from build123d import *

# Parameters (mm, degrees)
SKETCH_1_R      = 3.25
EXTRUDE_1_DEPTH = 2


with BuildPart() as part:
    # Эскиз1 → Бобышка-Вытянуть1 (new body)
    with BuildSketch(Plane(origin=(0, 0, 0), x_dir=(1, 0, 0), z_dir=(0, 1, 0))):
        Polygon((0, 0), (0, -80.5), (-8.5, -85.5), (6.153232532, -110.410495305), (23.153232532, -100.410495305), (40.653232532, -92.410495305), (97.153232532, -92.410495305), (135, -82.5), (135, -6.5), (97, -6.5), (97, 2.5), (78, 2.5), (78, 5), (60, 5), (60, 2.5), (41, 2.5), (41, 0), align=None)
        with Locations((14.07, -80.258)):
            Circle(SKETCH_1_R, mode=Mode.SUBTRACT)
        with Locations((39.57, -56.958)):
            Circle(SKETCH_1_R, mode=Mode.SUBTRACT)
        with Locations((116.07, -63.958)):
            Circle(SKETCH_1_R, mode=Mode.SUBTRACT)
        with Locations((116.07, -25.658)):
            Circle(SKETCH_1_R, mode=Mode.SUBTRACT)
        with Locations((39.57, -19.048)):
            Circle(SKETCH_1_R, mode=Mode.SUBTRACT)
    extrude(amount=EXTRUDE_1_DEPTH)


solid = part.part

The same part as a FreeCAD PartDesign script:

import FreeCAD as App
import Part
import Sketcher

V = App.Vector


def add_polygon(sketch, points):
    """Adds a closed chain of lines whose ends are joined by coincident constraints."""
    first, n = sketch.GeometryCount, len(points)
    for a, b in zip(points, points[1:] + points[:1]):
        sketch.addGeometry(Part.LineSegment(App.Vector(*a, 0), App.Vector(*b, 0)), False)
    for i in range(n):
        sketch.addConstraint(Sketcher.Constraint("Coincident", first + i, 2, first + (i + 1) % n, 1))

doc = App.newDocument("Part")
body = doc.addObject("PartDesign::Body", "Body")

sketch1 = body.newObject("Sketcher::SketchObject", "Sketch")
sketch1.AttachmentSupport = (doc.getObject("XZ_Plane"), [""])
sketch1.MapMode = "FlatFace"
add_polygon(sketch1, [(0, 0), (0, 80.5), (-8.5, 85.5), (6.2, 110.4), (23.2, 100.4), (40.7, 92.4), (97.2, 92.4), (135, 82.5), (135, 6.5), (97, 6.5), (97, -2.5), (78, -2.5), (78, -5), (60, -5), (60, -2.5), (41, -2.5), (41, 0)])
sketch1.addGeometry(Part.Circle(V(14.1, 80.3, 0), V(0, 0, 1), 3.2), False)
sketch1.addGeometry(Part.Circle(V(39.6, 57, 0), V(0, 0, 1), 3.2), False)
sketch1.addGeometry(Part.Circle(V(116.1, 64, 0), V(0, 0, 1), 3.2), False)
sketch1.addGeometry(Part.Circle(V(39.6, 19, 0), V(0, 0, 1), 3.2), False)
sketch1.addGeometry(Part.Circle(V(116.1, 25.7, 0), V(0, 0, 1), 3.2), False)
sketch1.addConstraint([
    Sketcher.Constraint("Vertical", 0),
    Sketcher.Constraint("Horizontal", 5),
    Sketcher.Constraint("Vertical", 7),
    Sketcher.Constraint("Horizontal", 8),
    Sketcher.Constraint("Vertical", 9),
    Sketcher.Constraint("Horizontal", 10),
    Sketcher.Constraint("Vertical", 11),
    Sketcher.Constraint("Horizontal", 12),
    Sketcher.Constraint("Vertical", 13),
    Sketcher.Constraint("Horizontal", 14),
    Sketcher.Constraint("Vertical", 15),
    Sketcher.Constraint("Horizontal", 16),
    Sketcher.Constraint("Coincident", 16, 2, -1, 1),
    Sketcher.Constraint("Equal", 17, 18),
    Sketcher.Constraint("Equal", 18, 19),
    Sketcher.Constraint("Equal", 19, 20),
    Sketcher.Constraint("Equal", 20, 21),
    Sketcher.Constraint("Perpendicular", 1, 2),
    Sketcher.Constraint("Perpendicular", 2, 3),
    Sketcher.Constraint("Horizontal", 10, 2, 13, 2),
    Sketcher.Constraint("Vertical", 18, 3, 20, 3),
    Sketcher.Constraint("Vertical", 19, 3, 21, 3),
    Sketcher.Constraint("Equal", 10, 14),
    Sketcher.Constraint("Equal", 13, 15),
    Sketcher.Constraint("Diameter", 17, 6.5),
    Sketcher.Constraint("DistanceX", 8, 2, 8, 1, 38.0),
    Sketcher.Constraint("DistanceX", 10, 2, 10, 1, 19.0),
    Sketcher.Constraint("DistanceX", 12, 2, 12, 1, 18.0),
    Sketcher.Constraint("DistanceX", 16, 2, 16, 1, 41.0),
    Sketcher.Constraint("DistanceY", 7, 2, 7, 1, 76.0),
    Sketcher.Constraint("DistanceY", 9, 2, 9, 1, 9.0),
    Sketcher.Constraint("DistanceX", 5, 1, 5, 2, 56.5),
    Sketcher.Constraint("DistanceY", 0, 1, 0, 2, 80.5),
    Sketcher.Constraint("DistanceY", 11, 2, 11, 1, 2.5),
    Sketcher.Constraint("DistanceY", 18, 3, 19, 3, 7.0),
    Sketcher.Constraint("DistanceX", 17, 3, 19, 3, 102.0),
    Sketcher.Constraint("DistanceY", 0, 2, 1, 2, 5.0),
    Sketcher.Constraint("DistanceX", 2, 2, 3, 2, 17.0),
    Sketcher.Constraint("DistanceY", 3, 2, 2, 2, 10.0),
    Sketcher.Constraint("DistanceY", 4, 2, 3, 2, 8.0),
    Sketcher.Constraint("DistanceX", 3, 2, 5, 2, 74.0),
    Sketcher.Constraint("DistanceX", 17, 3, 18, 3, 25.5),
    Sketcher.Constraint("DistanceY", 18, 3, 17, 3, 23.3),
    Sketcher.Constraint("DistanceY", 21, 3, 19, 3, 38.3),
    Sketcher.Constraint("DistanceX", -1, 1, 17, 3, 14.07),
    Sketcher.Constraint("DistanceY", 20, 3, 18, 3, 37.91),
    Sketcher.Constraint("DistanceY", -1, 1, 17, 3, 80.258),
    Sketcher.Constraint("Distance", 6, 39.122829),
])
pad1 = body.newObject("PartDesign::Pad", "Pad")
pad1.Profile = sketch1
pad1.Length = 2
pad1.Reversed = True

doc.recompute()
